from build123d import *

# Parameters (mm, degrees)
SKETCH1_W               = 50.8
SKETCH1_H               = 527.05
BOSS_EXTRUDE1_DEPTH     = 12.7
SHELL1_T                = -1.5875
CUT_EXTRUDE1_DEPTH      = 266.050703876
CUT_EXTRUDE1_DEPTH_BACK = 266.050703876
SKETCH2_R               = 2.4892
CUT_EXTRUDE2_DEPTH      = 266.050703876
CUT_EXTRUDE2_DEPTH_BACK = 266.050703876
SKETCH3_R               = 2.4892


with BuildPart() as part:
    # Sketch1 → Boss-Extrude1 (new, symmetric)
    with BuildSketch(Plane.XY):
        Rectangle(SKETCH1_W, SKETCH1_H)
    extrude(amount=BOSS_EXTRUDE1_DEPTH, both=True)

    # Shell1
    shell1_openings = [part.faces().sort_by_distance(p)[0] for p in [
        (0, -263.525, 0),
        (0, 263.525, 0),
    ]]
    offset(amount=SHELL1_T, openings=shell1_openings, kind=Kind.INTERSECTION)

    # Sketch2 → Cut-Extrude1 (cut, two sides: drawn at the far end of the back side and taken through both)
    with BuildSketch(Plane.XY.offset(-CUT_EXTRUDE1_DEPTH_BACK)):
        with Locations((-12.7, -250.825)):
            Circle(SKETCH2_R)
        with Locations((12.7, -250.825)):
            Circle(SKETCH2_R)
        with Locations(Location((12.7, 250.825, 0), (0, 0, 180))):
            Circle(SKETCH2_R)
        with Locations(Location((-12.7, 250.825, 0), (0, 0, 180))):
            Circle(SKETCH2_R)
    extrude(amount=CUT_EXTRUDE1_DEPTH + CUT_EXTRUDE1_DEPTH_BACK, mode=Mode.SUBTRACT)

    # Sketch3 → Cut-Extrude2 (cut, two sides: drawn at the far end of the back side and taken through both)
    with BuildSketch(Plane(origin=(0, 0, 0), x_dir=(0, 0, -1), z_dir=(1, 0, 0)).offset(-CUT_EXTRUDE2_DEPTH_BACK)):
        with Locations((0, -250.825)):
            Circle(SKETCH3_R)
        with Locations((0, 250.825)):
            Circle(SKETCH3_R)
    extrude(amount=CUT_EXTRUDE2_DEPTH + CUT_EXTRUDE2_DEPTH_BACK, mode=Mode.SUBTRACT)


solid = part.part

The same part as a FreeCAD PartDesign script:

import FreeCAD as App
import Part
import Sketcher

V = App.Vector
Q = App.Units.Quantity


def faces_at(feature, points):
    """Names of the faces that lie closest to the given points."""
    faces = feature.Shape.Faces
    near = lambda p: min(range(len(faces)), key=lambda i: faces[i].distToShape(Part.Vertex(*p))[0])
    return sorted({f"Face{near(p) + 1}" for p in points})


def add_polygon(sketch, points):
    """Adds a closed chain of lines whose ends are joined by coincident constraints."""
    first, n = sketch.GeometryCount, len(points)
    for a, b in zip(points, points[1:] + points[:1]):
        sketch.addGeometry(Part.LineSegment(App.Vector(*a, 0), App.Vector(*b, 0)), False)
    for i in range(n):
        sketch.addConstraint(Sketcher.Constraint("Coincident", first + i, 2, first + (i + 1) % n, 1))

doc = App.newDocument("Part")
params = doc.addObject("Spreadsheet::Sheet", "Params")
for row, (alias, value) in enumerate([
    ("sketch1_width", "2 in"),
    ("sketch1_height", "20.75 in"),
    ("pad1_length", "1 in"),
    ("thickness_wall", "0.0625 in"),
    ("sketch2_diameter", "0.196 in"),
    ("sketch3_diameter", "0.196 in"),
], start=1):
    params.set(f"A{row}", alias)
    params.set(f"B{row}", "=" + value)
    params.setAlias(f"B{row}", alias)

body = doc.addObject("PartDesign::Body", "Body")

# Sketch on XY plane
sketch1 = body.newObject("Sketcher::SketchObject", "Sketch")
sketch1.AttachmentSupport = (doc.getObject("XY_Plane"), [""])
sketch1.MapMode = "FlatFace"
add_polygon(sketch1, [(-25.4, 263.525), (-25.4, -263.525), (25.4, -263.525), (25.4, 263.525)])  # lines 0-3
sketch1.addConstraint(Sketcher.Constraint("Vertical", 0))
sketch1.addConstraint(Sketcher.Constraint("Horizontal", 1))
sketch1.addConstraint(Sketcher.Constraint("Vertical", 2))
sketch1.addConstraint(Sketcher.Constraint("Horizontal", 3))
sketch1.addConstraint(Sketcher.Constraint("Symmetric", 0, 2, 2, 2, -1, 1))
sketch1.addConstraint(Sketcher.Constraint("DistanceX", 1, 1, 1, 2, Q("2 in")))
sketch1.addConstraint(Sketcher.Constraint("DistanceY", 0, 2, 0, 1, Q("20.75 in")))
sketch1.setExpression("Constraints[9]", "Params.sketch1_width")
sketch1.setExpression("Constraints[10]", "Params.sketch1_height")
pad1 = body.newObject("PartDesign::Pad", "Pad")
pad1.Profile = sketch1
pad1.setExpression("Length", "Params.pad1_length")
pad1.Midplane = True
doc.recompute()

thickness = body.newObject("PartDesign::Thickness", "Thickness")
thickness.Base = (pad1, faces_at(pad1, [(0, -263.525, 0), (0, 263.525, 0)]))
thickness.setExpression("Value", "Params.thickness_wall")
thickness.Reversed = True
thickness.Join = "Intersection"

# Sketch on XY plane
sketch2 = body.newObject("Sketcher::SketchObject", "Sketch001")
sketch2.AttachmentSupport = (doc.getObject("XY_Plane"), [""])
sketch2.MapMode = "FlatFace"
sketch2.addGeometry(Part.Circle(V(-12.7, -250.825, 0), V(0, 0, 1), 2.4892), False)
sketch2.addGeometry(Part.Circle(V(12.7, -250.825, 0), V(0, 0, 1), 2.4892), False)
sketch2.addGeometry(Part.Circle(V(12.7, 250.825, 0), V(0, 0, 1), 2.4892), False)
sketch2.addGeometry(Part.Circle(V(-12.7, 250.825, 0), V(0, 0, 1), 2.4892), False)
sketch2.addConstraint(Sketcher.Constraint("Equal", 0, 1))
sketch2.addConstraint(Sketcher.Constraint("Equal", 1, 2))
sketch2.addConstraint(Sketcher.Constraint("Equal", 2, 3))
sketch2.addConstraint(Sketcher.Constraint("Symmetric", 0, 3, 2, 3, -1, 1))
sketch2.addConstraint(Sketcher.Constraint("Symmetric", 1, 3, 3, 3, -1, 1))
sketch2.addConstraint(Sketcher.Constraint("Symmetric", 0, 3, 1, 3, -2))
sketch2.addConstraint(Sketcher.Constraint("Diameter", 0, Q("0.196 in")))
sketch2.addConstraint(Sketcher.Constraint("DistanceX", 0, 3, 1, 3, Q("1 in")))
sketch2.addConstraint(Sketcher.Constraint("DistanceY", 1, 3, 2, 3, Q("19.75 in")))
sketch2.setExpression("Constraints[6]", "Params.sketch2_diameter")
pocket1 = body.newObject("PartDesign::Pocket", "Pocket")
pocket1.Profile = sketch2
pocket1.Type = "ThroughAll"
pocket1.Midplane = True

# Sketch on YZ plane
sketch3 = body.newObject("Sketcher::SketchObject", "Sketch002")
sketch3.AttachmentSupport = (doc.getObject("YZ_Plane"), [""])
sketch3.MapMode = "FlatFace"
sketch3.addGeometry(Part.Circle(V(-250.825, 0, 0), V(0, 0, 1), 2.4892), False)
sketch3.addGeometry(Part.Circle(V(250.825, 0, 0), V(0, 0, 1), 2.4892), False)
sketch3.addConstraint(Sketcher.Constraint("Equal", 0, 1))
sketch3.addConstraint(Sketcher.Constraint("Symmetric", 0, 3, 1, 3, -1, 1))
sketch3.addConstraint(Sketcher.Constraint("PointOnObject", 0, 3, -1))
sketch3.addConstraint(Sketcher.Constraint("Diameter", 0, Q("0.196 in")))
sketch3.addConstraint(Sketcher.Constraint("DistanceX", 0, 3, 1, 3, Q("19.75 in")))
sketch3.setExpression("Constraints[3]", "Params.sketch3_diameter")
pocket2 = body.newObject("PartDesign::Pocket", "Pocket001")
pocket2.Profile = sketch3
pocket2.Type = "ThroughAll"
pocket2.Midplane = True

doc.recompute()
